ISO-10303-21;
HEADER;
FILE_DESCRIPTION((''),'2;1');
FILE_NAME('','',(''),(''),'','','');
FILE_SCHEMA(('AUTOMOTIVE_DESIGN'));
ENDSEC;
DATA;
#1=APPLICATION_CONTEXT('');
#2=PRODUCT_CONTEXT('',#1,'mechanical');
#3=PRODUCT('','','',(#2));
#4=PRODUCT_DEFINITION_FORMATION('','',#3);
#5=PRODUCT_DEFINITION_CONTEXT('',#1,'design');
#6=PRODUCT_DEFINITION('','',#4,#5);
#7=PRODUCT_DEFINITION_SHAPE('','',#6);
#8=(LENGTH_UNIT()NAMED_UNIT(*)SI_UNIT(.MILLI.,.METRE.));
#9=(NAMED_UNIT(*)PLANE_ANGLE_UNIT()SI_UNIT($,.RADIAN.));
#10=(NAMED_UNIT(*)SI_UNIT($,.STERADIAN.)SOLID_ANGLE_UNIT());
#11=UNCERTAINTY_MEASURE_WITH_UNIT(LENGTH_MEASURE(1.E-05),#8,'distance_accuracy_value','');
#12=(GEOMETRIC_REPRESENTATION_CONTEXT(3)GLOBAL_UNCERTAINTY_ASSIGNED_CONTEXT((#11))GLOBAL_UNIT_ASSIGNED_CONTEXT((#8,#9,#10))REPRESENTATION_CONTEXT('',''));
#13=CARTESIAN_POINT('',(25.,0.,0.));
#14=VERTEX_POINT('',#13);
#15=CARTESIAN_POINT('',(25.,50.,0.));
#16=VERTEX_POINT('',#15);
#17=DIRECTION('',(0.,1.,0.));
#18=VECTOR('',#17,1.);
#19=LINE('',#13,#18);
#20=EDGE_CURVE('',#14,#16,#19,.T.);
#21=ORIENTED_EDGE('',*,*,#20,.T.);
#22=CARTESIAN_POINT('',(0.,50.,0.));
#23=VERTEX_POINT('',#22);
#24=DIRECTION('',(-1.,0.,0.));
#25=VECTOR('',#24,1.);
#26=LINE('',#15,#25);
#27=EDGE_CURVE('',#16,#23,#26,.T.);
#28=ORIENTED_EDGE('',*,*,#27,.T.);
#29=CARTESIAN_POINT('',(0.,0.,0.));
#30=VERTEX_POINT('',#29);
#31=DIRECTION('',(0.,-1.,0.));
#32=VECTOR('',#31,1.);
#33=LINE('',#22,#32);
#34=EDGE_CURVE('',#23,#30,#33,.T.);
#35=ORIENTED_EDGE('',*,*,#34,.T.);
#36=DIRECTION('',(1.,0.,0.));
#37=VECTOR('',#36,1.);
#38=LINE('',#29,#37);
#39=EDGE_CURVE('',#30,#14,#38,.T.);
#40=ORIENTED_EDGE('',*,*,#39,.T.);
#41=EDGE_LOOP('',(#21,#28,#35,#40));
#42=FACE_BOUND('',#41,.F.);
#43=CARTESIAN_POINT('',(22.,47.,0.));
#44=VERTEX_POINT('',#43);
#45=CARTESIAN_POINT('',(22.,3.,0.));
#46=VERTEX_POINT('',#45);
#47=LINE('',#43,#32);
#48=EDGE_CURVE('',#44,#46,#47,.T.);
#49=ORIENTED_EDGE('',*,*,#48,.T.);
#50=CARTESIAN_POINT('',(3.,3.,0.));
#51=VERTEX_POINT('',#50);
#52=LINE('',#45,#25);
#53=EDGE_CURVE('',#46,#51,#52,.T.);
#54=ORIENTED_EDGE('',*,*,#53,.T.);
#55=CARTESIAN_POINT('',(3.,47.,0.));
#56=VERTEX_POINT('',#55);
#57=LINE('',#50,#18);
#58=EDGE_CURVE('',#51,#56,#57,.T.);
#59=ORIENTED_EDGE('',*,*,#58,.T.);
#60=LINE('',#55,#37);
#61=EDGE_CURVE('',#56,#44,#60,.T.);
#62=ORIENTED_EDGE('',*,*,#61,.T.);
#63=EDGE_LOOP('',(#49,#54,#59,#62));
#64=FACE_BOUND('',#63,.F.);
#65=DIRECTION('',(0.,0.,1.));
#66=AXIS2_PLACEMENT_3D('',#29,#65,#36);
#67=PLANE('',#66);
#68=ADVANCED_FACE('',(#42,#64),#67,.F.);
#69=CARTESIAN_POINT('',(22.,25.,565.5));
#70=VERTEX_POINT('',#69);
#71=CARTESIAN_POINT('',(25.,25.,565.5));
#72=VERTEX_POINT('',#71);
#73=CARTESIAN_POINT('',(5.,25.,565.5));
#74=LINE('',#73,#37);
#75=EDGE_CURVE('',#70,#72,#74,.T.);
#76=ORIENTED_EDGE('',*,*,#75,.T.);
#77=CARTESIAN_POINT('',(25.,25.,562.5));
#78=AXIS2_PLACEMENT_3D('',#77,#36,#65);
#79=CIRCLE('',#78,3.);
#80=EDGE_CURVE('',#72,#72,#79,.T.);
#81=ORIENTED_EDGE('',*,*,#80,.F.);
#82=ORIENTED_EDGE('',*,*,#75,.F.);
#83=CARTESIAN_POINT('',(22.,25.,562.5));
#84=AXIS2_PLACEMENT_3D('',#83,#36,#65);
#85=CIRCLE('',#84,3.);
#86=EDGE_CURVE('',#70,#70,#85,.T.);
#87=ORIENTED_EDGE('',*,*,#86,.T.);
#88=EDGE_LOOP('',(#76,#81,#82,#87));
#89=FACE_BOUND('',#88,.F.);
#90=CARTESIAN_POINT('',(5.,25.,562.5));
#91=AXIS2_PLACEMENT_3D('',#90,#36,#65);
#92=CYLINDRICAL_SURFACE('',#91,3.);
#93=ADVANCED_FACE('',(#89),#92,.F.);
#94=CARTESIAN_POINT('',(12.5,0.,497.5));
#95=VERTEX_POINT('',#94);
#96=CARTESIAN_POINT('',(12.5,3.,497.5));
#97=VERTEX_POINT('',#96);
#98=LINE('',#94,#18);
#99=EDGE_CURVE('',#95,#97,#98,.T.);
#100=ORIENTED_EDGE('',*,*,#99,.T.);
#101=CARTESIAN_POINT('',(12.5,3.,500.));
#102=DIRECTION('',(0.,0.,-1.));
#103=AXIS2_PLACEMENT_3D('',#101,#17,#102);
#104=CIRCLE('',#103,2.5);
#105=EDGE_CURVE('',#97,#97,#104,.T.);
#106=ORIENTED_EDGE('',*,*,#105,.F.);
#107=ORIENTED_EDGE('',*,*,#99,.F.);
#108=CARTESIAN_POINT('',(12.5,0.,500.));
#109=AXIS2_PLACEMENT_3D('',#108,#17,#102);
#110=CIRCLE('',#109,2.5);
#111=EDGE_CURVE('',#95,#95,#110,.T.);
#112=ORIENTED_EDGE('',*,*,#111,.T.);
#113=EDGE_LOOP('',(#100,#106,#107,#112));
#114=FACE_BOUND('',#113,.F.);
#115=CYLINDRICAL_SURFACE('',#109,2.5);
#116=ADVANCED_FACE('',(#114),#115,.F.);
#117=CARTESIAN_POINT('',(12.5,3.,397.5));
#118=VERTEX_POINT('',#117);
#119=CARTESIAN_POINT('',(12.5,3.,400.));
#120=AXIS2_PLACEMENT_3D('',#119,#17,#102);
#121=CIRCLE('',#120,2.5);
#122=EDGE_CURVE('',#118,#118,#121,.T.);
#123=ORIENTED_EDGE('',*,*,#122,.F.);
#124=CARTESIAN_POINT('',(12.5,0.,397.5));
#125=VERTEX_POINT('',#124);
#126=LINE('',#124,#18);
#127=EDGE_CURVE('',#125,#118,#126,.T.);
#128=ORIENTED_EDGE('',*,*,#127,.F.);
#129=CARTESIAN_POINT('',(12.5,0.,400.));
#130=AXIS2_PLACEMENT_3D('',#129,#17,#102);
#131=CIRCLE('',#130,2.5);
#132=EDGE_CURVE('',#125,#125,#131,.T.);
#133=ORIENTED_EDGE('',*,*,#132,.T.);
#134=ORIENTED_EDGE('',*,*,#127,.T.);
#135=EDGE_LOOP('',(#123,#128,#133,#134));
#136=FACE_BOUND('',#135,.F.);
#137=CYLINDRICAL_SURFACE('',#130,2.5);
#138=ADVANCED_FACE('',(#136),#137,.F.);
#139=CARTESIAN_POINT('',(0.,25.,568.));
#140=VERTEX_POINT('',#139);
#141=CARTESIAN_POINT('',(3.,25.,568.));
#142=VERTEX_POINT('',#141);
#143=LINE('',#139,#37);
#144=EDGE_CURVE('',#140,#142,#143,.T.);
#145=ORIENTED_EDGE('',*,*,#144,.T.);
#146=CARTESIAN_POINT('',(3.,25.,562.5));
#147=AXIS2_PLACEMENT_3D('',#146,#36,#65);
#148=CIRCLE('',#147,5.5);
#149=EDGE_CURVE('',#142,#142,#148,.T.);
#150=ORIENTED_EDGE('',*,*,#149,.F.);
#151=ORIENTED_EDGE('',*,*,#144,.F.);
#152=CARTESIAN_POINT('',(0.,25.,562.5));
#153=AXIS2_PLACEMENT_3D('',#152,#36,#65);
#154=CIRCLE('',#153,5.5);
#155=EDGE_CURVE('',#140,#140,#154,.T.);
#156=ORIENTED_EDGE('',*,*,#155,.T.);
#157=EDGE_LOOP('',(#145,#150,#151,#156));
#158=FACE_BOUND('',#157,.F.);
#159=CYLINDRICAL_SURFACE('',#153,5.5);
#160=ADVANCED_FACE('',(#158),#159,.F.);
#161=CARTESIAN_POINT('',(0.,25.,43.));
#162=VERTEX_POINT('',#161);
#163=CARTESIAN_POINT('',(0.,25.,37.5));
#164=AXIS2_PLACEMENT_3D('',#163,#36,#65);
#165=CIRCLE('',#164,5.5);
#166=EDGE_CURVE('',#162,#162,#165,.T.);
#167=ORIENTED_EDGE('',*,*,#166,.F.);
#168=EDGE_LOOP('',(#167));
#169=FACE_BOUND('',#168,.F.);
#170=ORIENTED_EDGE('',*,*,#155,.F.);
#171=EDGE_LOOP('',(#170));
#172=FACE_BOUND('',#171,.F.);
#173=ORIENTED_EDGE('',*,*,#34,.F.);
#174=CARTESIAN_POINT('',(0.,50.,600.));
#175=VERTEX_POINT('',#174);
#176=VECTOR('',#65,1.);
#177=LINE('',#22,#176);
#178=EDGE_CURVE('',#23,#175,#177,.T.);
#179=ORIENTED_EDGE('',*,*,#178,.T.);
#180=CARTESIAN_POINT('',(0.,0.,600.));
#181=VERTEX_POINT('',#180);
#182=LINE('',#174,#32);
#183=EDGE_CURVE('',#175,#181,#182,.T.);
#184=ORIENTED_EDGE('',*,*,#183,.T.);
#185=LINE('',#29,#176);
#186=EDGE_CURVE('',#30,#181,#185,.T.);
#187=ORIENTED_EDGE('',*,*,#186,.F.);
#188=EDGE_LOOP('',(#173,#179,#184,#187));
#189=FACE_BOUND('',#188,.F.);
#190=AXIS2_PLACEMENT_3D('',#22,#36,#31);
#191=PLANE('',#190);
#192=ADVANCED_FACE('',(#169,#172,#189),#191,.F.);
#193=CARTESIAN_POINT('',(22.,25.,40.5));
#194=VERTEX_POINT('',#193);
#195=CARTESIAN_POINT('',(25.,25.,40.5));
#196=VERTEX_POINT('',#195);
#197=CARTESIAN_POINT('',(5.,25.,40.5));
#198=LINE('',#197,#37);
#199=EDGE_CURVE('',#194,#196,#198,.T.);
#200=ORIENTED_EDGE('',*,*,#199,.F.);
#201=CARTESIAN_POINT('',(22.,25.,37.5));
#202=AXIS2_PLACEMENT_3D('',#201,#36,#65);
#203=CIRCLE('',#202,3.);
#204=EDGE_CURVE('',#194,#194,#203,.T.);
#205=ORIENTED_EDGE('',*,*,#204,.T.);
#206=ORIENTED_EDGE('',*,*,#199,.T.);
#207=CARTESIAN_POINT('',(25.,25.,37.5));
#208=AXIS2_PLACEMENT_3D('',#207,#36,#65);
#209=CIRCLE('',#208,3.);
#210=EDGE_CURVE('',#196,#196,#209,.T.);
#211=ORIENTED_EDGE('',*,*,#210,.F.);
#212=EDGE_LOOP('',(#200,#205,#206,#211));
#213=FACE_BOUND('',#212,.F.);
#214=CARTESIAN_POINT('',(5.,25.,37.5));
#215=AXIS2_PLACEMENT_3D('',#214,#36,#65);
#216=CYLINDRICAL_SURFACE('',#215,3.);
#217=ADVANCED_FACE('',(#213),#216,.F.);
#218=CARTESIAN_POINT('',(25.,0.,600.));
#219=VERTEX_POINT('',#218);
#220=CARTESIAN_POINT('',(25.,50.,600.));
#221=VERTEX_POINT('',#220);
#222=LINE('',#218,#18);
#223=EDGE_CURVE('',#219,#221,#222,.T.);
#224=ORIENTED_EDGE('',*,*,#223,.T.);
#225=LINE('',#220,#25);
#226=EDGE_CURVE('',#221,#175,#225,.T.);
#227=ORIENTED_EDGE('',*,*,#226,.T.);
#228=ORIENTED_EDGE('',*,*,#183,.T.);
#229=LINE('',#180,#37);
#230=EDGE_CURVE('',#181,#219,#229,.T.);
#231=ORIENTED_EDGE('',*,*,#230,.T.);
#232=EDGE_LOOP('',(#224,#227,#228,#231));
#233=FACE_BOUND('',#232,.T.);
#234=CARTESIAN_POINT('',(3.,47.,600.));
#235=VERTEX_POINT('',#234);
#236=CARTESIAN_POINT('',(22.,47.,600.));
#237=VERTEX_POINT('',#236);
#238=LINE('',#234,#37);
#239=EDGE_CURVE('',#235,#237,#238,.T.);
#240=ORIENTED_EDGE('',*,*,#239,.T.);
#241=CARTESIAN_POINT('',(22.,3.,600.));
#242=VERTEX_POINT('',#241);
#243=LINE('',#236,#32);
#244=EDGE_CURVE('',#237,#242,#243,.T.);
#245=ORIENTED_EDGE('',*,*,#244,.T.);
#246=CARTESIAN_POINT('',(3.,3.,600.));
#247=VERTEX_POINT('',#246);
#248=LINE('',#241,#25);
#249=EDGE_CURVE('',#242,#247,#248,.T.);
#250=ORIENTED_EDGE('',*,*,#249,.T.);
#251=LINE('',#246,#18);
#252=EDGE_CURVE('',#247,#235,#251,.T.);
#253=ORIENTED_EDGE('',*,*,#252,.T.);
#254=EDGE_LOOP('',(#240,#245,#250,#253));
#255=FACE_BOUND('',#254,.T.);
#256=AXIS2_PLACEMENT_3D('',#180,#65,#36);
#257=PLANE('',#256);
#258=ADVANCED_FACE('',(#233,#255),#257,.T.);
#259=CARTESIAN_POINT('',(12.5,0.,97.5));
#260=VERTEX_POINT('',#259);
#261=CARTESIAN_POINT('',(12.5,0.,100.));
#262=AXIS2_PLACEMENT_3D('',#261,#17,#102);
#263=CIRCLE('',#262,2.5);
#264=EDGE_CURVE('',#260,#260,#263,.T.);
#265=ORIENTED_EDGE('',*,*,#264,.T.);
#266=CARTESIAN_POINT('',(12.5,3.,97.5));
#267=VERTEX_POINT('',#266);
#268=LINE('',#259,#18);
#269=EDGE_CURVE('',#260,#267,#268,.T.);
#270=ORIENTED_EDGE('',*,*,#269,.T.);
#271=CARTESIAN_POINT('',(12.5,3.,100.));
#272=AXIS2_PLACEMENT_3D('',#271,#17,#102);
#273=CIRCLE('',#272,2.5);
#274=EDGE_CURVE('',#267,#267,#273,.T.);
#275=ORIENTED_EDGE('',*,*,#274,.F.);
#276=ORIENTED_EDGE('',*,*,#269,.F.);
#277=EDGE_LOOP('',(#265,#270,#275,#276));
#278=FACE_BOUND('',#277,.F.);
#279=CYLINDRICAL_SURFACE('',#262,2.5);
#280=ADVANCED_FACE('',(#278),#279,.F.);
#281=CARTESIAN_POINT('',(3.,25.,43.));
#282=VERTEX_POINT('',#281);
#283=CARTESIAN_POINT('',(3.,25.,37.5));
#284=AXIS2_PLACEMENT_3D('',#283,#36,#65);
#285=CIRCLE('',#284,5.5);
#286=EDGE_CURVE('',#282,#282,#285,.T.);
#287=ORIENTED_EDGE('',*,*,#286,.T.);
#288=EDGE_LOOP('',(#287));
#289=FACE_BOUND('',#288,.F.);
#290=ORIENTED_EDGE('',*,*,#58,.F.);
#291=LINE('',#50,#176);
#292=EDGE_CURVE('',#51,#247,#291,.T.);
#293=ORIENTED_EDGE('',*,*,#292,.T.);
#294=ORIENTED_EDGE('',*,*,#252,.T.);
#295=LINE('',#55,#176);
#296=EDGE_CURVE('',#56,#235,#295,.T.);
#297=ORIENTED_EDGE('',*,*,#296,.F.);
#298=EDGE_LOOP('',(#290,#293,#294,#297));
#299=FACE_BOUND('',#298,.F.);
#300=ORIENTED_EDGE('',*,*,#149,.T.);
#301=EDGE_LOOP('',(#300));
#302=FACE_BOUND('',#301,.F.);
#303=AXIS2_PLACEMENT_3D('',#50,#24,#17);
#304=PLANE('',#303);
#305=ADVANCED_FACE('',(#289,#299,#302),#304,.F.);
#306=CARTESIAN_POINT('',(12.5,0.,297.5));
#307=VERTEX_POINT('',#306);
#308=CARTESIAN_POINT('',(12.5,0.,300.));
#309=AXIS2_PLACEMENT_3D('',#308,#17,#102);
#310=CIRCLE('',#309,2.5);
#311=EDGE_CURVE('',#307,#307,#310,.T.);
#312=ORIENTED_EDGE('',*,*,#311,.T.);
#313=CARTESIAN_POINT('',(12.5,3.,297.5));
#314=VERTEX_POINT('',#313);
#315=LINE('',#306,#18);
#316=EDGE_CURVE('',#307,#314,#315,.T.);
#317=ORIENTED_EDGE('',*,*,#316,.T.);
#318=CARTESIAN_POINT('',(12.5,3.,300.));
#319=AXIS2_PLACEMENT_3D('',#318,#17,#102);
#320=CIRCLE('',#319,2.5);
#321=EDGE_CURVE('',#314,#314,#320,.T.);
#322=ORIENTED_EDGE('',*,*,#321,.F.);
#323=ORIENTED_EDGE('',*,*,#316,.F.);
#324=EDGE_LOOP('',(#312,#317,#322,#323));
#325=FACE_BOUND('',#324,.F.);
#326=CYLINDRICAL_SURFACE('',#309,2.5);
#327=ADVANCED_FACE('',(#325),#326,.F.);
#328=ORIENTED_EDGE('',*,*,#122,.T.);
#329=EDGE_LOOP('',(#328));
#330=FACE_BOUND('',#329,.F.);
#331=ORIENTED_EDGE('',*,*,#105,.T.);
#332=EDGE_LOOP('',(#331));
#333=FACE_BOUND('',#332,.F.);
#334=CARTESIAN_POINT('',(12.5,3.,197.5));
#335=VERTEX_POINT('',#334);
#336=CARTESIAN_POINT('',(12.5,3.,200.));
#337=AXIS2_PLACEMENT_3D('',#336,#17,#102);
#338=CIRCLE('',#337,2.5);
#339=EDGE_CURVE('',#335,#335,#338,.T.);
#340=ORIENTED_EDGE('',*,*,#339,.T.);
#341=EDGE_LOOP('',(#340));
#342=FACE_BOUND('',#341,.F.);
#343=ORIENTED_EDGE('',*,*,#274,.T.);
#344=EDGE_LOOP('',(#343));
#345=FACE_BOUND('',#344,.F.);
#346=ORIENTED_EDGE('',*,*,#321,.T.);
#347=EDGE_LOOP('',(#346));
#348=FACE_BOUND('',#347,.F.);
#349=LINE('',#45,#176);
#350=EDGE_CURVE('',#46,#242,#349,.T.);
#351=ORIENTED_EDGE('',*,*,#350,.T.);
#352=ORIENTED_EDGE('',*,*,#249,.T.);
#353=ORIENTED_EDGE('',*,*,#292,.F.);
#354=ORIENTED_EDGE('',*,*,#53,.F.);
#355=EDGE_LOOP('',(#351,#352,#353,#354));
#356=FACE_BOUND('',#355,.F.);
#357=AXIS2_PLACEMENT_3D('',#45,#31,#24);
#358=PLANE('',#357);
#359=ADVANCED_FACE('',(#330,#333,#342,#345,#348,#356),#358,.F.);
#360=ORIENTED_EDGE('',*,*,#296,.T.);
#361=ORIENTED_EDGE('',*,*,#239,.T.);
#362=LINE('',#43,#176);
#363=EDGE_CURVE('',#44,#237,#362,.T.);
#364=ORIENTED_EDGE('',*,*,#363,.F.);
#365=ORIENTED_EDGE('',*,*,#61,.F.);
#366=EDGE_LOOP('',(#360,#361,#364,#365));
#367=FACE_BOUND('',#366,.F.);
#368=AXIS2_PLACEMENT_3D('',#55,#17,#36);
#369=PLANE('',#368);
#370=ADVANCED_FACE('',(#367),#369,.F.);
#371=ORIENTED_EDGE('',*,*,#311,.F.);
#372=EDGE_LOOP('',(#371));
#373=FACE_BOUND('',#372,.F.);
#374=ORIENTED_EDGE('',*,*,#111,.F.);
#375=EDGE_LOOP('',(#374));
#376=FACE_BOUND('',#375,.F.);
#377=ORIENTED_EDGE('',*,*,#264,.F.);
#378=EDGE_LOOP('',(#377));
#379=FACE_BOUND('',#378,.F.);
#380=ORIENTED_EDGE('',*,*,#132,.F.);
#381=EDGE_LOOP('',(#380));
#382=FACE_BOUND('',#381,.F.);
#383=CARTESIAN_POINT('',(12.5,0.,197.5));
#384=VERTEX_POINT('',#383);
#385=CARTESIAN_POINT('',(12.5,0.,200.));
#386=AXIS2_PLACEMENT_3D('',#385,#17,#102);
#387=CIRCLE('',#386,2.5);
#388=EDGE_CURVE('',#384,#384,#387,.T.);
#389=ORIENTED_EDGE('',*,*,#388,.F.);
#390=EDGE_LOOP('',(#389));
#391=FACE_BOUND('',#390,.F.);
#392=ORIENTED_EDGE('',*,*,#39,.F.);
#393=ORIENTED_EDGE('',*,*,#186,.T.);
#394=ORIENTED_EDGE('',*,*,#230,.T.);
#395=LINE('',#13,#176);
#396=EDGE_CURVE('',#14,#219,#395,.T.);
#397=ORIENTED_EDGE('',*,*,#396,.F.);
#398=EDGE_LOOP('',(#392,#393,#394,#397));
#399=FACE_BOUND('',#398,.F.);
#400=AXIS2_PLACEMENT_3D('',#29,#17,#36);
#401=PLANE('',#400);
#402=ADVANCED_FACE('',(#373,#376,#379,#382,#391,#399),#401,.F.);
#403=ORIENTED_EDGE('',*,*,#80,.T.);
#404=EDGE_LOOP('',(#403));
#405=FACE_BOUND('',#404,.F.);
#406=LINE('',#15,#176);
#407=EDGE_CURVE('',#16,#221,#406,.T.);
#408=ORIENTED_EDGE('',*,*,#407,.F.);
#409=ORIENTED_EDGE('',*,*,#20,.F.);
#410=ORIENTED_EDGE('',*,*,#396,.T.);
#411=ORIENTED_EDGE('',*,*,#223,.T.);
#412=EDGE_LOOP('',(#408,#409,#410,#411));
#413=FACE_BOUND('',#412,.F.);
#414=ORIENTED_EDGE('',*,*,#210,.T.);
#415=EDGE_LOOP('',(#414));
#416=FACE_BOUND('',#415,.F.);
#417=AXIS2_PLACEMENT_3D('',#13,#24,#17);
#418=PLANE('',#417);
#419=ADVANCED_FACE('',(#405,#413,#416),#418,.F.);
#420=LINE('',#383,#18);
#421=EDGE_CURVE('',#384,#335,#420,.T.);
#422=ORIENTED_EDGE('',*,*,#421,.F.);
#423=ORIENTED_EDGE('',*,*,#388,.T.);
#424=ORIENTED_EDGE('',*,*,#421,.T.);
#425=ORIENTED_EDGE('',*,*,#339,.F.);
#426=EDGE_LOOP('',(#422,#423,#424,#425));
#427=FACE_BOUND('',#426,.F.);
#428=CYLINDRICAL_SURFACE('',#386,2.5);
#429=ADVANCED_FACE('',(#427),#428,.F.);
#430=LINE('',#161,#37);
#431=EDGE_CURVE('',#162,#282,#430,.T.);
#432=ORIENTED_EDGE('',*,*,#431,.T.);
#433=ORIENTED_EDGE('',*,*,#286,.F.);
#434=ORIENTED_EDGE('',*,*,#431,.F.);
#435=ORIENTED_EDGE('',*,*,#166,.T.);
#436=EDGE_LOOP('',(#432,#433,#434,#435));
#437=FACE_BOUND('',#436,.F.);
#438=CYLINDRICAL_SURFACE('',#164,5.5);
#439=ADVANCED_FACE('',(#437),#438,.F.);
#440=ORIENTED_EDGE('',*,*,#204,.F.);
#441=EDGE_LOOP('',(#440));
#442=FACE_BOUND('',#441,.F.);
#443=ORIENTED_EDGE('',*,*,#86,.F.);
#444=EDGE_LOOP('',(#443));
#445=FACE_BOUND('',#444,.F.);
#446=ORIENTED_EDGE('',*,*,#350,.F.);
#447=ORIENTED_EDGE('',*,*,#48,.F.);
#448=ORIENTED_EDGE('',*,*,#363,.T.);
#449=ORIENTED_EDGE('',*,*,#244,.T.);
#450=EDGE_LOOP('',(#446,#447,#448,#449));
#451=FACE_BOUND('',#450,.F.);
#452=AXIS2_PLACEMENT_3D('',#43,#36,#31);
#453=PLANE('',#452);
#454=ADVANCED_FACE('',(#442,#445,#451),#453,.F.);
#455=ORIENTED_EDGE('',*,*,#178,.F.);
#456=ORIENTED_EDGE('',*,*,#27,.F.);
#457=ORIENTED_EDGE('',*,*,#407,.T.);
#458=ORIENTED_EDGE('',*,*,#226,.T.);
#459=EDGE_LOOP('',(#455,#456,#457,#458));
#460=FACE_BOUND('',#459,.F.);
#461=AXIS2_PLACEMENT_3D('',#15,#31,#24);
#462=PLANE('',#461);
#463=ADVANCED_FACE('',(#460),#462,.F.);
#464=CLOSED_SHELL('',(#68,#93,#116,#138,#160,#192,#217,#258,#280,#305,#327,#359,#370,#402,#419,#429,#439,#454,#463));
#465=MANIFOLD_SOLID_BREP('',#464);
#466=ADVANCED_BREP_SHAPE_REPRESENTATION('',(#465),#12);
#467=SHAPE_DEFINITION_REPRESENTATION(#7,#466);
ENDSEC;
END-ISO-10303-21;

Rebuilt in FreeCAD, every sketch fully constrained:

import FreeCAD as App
import Part
import Sketcher

V = App.Vector
Q = App.Units.Quantity


def add_polygon(sketch, points):
    """Adds a closed chain of lines whose ends are joined by coincident constraints."""
    first, n = sketch.GeometryCount, len(points)
    for a, b in zip(points, points[1:] + points[:1]):
        sketch.addGeometry(Part.LineSegment(App.Vector(*a, 0), App.Vector(*b, 0)), False)
    for i in range(n):
        sketch.addConstraint(Sketcher.Constraint("Coincident", first + i, 2, first + (i + 1) % n, 1))

doc = App.newDocument("Part")
body = doc.addObject("PartDesign::Body", "Body")

sketch1 = body.newObject("Sketcher::SketchObject", "Sketch")
sketch1.AttachmentSupport = (doc.getObject("XY_Plane"), [""])
sketch1.MapMode = "FlatFace"
add_polygon(sketch1, [(0, 50), (0, 0), (25, 0), (25, 50)])
add_polygon(sketch1, [(3, 47), (22, 47), (22, 3), (3, 3)])
sketch1.addConstraint(Sketcher.Constraint("Vertical", 0))
sketch1.addConstraint(Sketcher.Constraint("Horizontal", 1))
sketch1.addConstraint(Sketcher.Constraint("Vertical", 2))
sketch1.addConstraint(Sketcher.Constraint("Horizontal", 3))
sketch1.addConstraint(Sketcher.Constraint("Horizontal", 4))
sketch1.addConstraint(Sketcher.Constraint("Vertical", 5))
sketch1.addConstraint(Sketcher.Constraint("Horizontal", 6))
sketch1.addConstraint(Sketcher.Constraint("Vertical", 7))
sketch1.addConstraint(Sketcher.Constraint("Coincident", 0, 2, -1, 1))
sketch1.addConstraint(Sketcher.Constraint("DistanceX", 1, 1, 1, 2, Q("25 mm")))
sketch1.addConstraint(Sketcher.Constraint("DistanceY", 0, 2, 0, 1, Q("50 mm")))
sketch1.addConstraint(Sketcher.Constraint("DistanceY", -1, 1, 5, 2, Q("3 mm")))
sketch1.addConstraint(Sketcher.Constraint("DistanceX", -1, 1, 6, 2, Q("3 mm")))
sketch1.addConstraint(Sketcher.Constraint("DistanceX", 4, 2, 2, 2, Q("3 mm")))
sketch1.addConstraint(Sketcher.Constraint("DistanceY", 4, 2, 2, 2, Q("3 mm")))
pad1 = body.newObject("PartDesign::Pad", "Pad")
pad1.Profile = sketch1
pad1.Length = 600

sketch2 = body.newObject("Sketcher::SketchObject", "Sketch001")
sketch2.AttachmentSupport = (doc.getObject("YZ_Plane"), [""])
sketch2.MapMode = "FlatFace"
sketch2.addGeometry(Part.Circle(V(25, 562.5, 0), V(0, 0, 1), 3), False)
sketch2.addGeometry(Part.Circle(V(25, 37.5, 0), V(0, 0, 1), 3), False)
sketch2.addConstraint(Sketcher.Constraint("Equal", 0, 1))
sketch2.addConstraint(Sketcher.Constraint("Vertical", 0, 3, 1, 3))
sketch2.addConstraint(Sketcher.Constraint("Diameter", 0, Q("6 mm")))
sketch2.addConstraint(Sketcher.Constraint("DistanceX", -1, 1, 0, 3, Q("25 mm")))
sketch2.addConstraint(Sketcher.Constraint("DistanceY", 1, 3, 0, 3, Q("525 mm")))
sketch2.addConstraint(Sketcher.Constraint("DistanceY", -1, 1, 0, 3, Q("562.5 mm")))
doc.recompute()
hole = body.newObject("PartDesign::Hole", "Hole")
hole.Profile = sketch2
hole.ThreadType = "None"
hole.Diameter = 6
hole.DepthType = "ThroughAll"
hole.HoleCutType = "Counterbore"
hole.HoleCutDiameter = 11
hole.HoleCutDepth = 5
hole.Reversed = True

sketch3 = body.newObject("Sketcher::SketchObject", "Sketch002")
sketch3.AttachmentSupport = (doc.getObject("XZ_Plane"), [""])
sketch3.MapMode = "FlatFace"
sketch3.addGeometry(Part.Circle(V(12.5, 100, 0), V(0, 0, 1), 2.5), False)
sketch3.addGeometry(Part.Circle(V(12.5, 200, 0), V(0, 0, 1), 2.5), False)
sketch3.addGeometry(Part.Circle(V(12.5, 300, 0), V(0, 0, 1), 2.5), False)
sketch3.addGeometry(Part.Circle(V(12.5, 400, 0), V(0, 0, 1), 2.5), False)
sketch3.addGeometry(Part.Circle(V(12.5, 500, 0), V(0, 0, 1), 2.5), False)
sketch3.addConstraint(Sketcher.Constraint("Equal", 0, 1))
sketch3.addConstraint(Sketcher.Constraint("Equal", 1, 2))
sketch3.addConstraint(Sketcher.Constraint("Equal", 2, 3))
sketch3.addConstraint(Sketcher.Constraint("Equal", 3, 4))
sketch3.addConstraint(Sketcher.Constraint("Vertical", 0, 3, 1, 3))
sketch3.addConstraint(Sketcher.Constraint("Vertical", 1, 3, 2, 3))
sketch3.addConstraint(Sketcher.Constraint("Vertical", 2, 3, 3, 3))
sketch3.addConstraint(Sketcher.Constraint("Vertical", 3, 3, 4, 3))
sketch3.addConstraint(Sketcher.Constraint("Diameter", 0, Q("5 mm")))
sketch3.addConstraint(Sketcher.Constraint("DistanceY", -1, 1, 0, 3, Q("100 mm")))
sketch3.addConstraint(Sketcher.Constraint("DistanceY", -1, 1, 1, 3, Q("200 mm")))
sketch3.addConstraint(Sketcher.Constraint("DistanceY", -1, 1, 2, 3, Q("300 mm")))
sketch3.addConstraint(Sketcher.Constraint("DistanceY", -1, 1, 3, 3, Q("400 mm")))
sketch3.addConstraint(Sketcher.Constraint("DistanceY", -1, 1, 4, 3, Q("500 mm")))
sketch3.addConstraint(Sketcher.Constraint("DistanceX", -1, 1, 0, 3, Q("12.5 mm")))
doc.recompute()
hole2 = body.newObject("PartDesign::Hole", "Hole001")
hole2.Profile = sketch3
hole2.ThreadType = "None"
hole2.Diameter = 5
hole2.DepthType = "Dimension"
hole2.Depth = 8
hole2.DrillPoint = "Angled"
hole2.DrillPointAngle = 118

doc.recompute()
